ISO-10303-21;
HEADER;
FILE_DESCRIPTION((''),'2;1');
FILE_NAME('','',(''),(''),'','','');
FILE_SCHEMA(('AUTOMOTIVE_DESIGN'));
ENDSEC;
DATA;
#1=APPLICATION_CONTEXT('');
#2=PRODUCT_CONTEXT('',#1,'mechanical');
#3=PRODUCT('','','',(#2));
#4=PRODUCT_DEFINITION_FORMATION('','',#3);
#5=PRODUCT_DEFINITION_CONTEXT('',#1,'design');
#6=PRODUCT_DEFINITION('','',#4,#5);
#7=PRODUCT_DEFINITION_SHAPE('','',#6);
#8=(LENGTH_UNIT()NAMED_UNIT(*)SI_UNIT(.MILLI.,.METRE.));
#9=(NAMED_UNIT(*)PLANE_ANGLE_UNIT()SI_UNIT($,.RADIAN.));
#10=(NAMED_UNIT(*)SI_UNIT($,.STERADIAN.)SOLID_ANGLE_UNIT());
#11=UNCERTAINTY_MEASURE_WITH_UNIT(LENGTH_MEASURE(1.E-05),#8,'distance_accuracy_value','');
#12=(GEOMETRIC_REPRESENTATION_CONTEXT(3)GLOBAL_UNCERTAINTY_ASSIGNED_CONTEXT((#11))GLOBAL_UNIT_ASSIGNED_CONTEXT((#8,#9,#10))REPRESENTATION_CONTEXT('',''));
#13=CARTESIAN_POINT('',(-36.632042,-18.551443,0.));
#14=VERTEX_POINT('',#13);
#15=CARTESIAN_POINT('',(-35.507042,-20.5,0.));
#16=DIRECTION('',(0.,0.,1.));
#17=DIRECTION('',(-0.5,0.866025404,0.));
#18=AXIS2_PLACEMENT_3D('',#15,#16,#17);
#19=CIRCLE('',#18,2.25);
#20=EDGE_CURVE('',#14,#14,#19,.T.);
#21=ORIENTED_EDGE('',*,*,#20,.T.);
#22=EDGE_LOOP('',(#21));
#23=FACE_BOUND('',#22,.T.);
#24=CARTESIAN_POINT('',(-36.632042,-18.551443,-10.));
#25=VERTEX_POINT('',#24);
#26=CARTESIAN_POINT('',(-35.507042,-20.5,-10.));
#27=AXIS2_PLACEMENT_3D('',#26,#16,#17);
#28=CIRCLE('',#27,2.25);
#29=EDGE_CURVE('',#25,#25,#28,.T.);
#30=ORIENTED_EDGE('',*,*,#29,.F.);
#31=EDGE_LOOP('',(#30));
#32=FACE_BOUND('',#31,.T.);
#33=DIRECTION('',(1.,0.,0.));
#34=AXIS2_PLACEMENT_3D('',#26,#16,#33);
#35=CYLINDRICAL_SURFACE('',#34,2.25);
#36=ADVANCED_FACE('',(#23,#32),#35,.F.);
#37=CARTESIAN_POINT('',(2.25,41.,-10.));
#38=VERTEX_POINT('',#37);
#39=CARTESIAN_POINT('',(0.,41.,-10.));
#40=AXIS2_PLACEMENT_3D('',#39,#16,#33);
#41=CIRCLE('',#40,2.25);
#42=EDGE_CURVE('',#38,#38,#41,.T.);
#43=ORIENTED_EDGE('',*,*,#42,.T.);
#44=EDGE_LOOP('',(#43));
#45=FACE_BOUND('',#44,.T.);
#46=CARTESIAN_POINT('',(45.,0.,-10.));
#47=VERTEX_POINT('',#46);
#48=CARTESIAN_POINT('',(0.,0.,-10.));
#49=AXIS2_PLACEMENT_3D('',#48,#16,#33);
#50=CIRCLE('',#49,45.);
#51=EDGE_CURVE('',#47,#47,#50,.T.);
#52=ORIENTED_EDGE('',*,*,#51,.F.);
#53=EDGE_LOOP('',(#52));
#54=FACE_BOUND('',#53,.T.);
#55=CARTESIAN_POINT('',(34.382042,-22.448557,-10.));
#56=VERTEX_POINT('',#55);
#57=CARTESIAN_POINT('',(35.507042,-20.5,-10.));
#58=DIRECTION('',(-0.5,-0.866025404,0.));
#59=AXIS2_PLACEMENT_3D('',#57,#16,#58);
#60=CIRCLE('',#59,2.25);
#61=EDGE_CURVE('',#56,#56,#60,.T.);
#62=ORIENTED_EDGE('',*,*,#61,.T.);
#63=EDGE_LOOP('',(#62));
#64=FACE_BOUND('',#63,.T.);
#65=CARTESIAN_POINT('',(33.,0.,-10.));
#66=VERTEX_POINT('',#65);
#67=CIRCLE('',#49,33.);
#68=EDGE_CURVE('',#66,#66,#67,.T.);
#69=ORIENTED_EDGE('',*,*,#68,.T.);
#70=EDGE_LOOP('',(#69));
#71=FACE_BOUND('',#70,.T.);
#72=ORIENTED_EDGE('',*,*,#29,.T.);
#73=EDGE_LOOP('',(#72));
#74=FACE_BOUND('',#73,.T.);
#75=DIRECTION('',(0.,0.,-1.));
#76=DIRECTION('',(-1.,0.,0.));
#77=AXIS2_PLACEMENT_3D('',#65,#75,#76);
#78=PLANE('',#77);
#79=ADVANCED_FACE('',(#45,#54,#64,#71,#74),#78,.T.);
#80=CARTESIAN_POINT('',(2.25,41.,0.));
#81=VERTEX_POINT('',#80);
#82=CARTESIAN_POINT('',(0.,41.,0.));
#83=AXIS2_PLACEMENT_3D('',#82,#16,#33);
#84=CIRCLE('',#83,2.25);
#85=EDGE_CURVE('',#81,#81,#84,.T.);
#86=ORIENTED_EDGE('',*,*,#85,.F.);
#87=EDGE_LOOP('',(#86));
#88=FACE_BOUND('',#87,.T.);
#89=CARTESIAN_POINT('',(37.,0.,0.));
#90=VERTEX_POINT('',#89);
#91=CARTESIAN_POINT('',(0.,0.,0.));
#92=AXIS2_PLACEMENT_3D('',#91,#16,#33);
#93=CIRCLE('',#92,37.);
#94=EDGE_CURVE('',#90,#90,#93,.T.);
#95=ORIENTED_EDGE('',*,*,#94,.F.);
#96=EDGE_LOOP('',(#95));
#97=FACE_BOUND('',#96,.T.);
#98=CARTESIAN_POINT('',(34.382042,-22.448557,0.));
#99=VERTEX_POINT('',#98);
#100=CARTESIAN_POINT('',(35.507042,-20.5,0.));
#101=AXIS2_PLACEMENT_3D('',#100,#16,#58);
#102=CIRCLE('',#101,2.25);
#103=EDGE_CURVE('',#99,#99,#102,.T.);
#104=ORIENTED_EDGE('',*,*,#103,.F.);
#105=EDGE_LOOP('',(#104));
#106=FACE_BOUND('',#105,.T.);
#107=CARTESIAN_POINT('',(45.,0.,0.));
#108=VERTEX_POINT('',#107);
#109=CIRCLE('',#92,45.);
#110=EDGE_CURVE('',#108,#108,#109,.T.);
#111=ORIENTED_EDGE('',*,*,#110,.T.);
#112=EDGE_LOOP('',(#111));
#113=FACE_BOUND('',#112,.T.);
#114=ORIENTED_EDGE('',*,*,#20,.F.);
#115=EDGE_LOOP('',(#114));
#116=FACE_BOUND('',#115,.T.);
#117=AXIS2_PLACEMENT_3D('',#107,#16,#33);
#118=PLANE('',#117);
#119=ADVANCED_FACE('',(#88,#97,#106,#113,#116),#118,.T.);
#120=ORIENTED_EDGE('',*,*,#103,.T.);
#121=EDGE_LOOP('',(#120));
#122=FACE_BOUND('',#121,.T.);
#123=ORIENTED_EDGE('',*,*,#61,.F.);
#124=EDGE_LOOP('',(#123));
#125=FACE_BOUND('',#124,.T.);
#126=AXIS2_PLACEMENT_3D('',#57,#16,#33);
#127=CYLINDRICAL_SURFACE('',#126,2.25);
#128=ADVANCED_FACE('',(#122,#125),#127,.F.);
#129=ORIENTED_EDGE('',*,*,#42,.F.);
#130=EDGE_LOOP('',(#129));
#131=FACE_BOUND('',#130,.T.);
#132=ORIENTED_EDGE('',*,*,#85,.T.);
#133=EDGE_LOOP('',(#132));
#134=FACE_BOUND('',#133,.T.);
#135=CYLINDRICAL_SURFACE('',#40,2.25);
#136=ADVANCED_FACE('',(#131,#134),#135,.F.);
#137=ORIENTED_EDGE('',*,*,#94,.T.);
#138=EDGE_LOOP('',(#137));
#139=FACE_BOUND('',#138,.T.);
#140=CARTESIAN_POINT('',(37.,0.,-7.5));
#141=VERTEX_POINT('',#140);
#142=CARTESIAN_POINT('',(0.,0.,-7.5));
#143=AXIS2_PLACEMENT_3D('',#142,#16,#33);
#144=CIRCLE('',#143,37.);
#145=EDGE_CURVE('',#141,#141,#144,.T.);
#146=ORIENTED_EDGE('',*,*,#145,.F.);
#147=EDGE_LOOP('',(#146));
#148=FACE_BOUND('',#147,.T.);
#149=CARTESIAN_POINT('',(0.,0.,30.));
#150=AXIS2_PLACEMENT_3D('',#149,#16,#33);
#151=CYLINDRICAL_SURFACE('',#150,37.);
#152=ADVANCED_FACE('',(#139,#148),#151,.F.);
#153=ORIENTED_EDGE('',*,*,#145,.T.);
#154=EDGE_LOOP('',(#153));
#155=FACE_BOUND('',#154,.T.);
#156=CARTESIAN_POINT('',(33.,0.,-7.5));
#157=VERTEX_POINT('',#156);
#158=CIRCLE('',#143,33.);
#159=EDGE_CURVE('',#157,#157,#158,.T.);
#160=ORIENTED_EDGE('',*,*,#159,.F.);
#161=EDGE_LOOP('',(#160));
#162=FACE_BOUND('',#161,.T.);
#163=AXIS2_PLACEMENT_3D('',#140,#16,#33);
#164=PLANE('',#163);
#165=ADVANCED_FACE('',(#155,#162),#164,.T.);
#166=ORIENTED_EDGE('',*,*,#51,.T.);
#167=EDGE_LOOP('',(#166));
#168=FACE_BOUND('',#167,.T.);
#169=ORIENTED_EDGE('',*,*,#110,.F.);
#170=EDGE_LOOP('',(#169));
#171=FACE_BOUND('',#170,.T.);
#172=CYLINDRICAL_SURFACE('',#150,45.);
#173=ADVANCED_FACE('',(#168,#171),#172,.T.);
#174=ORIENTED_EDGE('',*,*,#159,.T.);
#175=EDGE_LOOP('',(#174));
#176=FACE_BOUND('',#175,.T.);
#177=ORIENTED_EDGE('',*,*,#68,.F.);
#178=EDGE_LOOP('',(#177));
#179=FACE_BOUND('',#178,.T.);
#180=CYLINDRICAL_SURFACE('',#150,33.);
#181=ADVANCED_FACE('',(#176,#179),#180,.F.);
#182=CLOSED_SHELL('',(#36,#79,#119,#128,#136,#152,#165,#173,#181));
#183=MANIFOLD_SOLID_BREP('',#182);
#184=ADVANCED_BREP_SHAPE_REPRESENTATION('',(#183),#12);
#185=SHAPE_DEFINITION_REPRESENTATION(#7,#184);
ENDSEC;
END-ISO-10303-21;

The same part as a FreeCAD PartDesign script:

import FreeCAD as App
import Part
import Sketcher

doc = App.newDocument("Part")
body = doc.addObject("PartDesign::Body", "Body")

sketch1 = doc.addObject("Sketcher::SketchObject", "Sketch")
body.addObject(sketch1)
sketch1.AttachmentSupport = (doc.XZ_Plane, [""])
sketch1.MapMode = "FlatFace"
sketch1.addGeometry([
    Part.LineSegment(App.Vector(45, -10, 0), App.Vector(33, -10, 0)),
    Part.LineSegment(App.Vector(33, -10, 0), App.Vector(33, -7.5, 0)),
    Part.LineSegment(App.Vector(33, -7.5, 0), App.Vector(37, -7.5, 0)),
    Part.LineSegment(App.Vector(37, -7.5, 0), App.Vector(37, 0, 0)),
    Part.LineSegment(App.Vector(37, 0, 0), App.Vector(45, 0, 0)),
    Part.LineSegment(App.Vector(45, 0, 0), App.Vector(45, -10, 0)),
], False)
sketch1.addConstraint([
    Sketcher.Constraint("Coincident", 0, 2, 1, 1),
    Sketcher.Constraint("Coincident", 1, 2, 2, 1),
    Sketcher.Constraint("Coincident", 2, 2, 3, 1),
    Sketcher.Constraint("Coincident", 3, 2, 4, 1),
    Sketcher.Constraint("Coincident", 4, 2, 5, 1),
    Sketcher.Constraint("Coincident", 5, 2, 0, 1),
    Sketcher.Constraint("Horizontal", 0),
    Sketcher.Constraint("Vertical", 1),
    Sketcher.Constraint("Horizontal", 2),
    Sketcher.Constraint("Vertical", 3),
    Sketcher.Constraint("Horizontal", 4),
    Sketcher.Constraint("Vertical", 5),
    Sketcher.Constraint("PointOnObject", 3, 2, -1),
    Sketcher.Constraint("DistanceX", 0, 2, 0, 1, 12.0),
    Sketcher.Constraint("DistanceX", 2, 1, 2, 2, 4.0),
    Sketcher.Constraint("DistanceY", 5, 2, 5, 1, 10.0),
    Sketcher.Constraint("DistanceY", 1, 1, 1, 2, 2.5),
    Sketcher.Constraint("DistanceX", -1, 1, 0, 2, 33.0),
])
revolution = doc.addObject("PartDesign::Revolution", "Revolution")
body.addObject(revolution)
revolution.Profile = sketch1
revolution.ReferenceAxis = (sketch1, ["V_Axis"])
revolution.Angle = 360

sketch2 = doc.addObject("Sketcher::SketchObject", "Sketch001")
body.addObject(sketch2)
sketch2.AttachmentSupport = (doc.XY_Plane, [""])
sketch2.MapMode = "FlatFace"
sketch2.addGeometry(Part.Circle(App.Vector(0, 41, 0), App.Vector(0, 0, 1), 2.25), False)
sketch2.addConstraint([
    Sketcher.Constraint("PointOnObject", 0, 3, -2),
    Sketcher.Constraint("Diameter", 0, 4.5),
    Sketcher.Constraint("DistanceY", -1, 1, 0, 3, 41.0),
])
pocket1 = doc.addObject("PartDesign::Pocket", "Pocket")
body.addObject(pocket1)
pocket1.Profile = sketch2
pocket1.Type = "ThroughAll"
doc.recompute()

polarpattern = doc.addObject("PartDesign::PolarPattern", "PolarPattern")
body.addObject(polarpattern)
polarpattern.Originals = [pocket1]
polarpattern.Axis = (doc.Z_Axis, [""])
polarpattern.Angle = 360
polarpattern.Occurrences = 3
body.Tip = polarpattern

doc.recompute()
